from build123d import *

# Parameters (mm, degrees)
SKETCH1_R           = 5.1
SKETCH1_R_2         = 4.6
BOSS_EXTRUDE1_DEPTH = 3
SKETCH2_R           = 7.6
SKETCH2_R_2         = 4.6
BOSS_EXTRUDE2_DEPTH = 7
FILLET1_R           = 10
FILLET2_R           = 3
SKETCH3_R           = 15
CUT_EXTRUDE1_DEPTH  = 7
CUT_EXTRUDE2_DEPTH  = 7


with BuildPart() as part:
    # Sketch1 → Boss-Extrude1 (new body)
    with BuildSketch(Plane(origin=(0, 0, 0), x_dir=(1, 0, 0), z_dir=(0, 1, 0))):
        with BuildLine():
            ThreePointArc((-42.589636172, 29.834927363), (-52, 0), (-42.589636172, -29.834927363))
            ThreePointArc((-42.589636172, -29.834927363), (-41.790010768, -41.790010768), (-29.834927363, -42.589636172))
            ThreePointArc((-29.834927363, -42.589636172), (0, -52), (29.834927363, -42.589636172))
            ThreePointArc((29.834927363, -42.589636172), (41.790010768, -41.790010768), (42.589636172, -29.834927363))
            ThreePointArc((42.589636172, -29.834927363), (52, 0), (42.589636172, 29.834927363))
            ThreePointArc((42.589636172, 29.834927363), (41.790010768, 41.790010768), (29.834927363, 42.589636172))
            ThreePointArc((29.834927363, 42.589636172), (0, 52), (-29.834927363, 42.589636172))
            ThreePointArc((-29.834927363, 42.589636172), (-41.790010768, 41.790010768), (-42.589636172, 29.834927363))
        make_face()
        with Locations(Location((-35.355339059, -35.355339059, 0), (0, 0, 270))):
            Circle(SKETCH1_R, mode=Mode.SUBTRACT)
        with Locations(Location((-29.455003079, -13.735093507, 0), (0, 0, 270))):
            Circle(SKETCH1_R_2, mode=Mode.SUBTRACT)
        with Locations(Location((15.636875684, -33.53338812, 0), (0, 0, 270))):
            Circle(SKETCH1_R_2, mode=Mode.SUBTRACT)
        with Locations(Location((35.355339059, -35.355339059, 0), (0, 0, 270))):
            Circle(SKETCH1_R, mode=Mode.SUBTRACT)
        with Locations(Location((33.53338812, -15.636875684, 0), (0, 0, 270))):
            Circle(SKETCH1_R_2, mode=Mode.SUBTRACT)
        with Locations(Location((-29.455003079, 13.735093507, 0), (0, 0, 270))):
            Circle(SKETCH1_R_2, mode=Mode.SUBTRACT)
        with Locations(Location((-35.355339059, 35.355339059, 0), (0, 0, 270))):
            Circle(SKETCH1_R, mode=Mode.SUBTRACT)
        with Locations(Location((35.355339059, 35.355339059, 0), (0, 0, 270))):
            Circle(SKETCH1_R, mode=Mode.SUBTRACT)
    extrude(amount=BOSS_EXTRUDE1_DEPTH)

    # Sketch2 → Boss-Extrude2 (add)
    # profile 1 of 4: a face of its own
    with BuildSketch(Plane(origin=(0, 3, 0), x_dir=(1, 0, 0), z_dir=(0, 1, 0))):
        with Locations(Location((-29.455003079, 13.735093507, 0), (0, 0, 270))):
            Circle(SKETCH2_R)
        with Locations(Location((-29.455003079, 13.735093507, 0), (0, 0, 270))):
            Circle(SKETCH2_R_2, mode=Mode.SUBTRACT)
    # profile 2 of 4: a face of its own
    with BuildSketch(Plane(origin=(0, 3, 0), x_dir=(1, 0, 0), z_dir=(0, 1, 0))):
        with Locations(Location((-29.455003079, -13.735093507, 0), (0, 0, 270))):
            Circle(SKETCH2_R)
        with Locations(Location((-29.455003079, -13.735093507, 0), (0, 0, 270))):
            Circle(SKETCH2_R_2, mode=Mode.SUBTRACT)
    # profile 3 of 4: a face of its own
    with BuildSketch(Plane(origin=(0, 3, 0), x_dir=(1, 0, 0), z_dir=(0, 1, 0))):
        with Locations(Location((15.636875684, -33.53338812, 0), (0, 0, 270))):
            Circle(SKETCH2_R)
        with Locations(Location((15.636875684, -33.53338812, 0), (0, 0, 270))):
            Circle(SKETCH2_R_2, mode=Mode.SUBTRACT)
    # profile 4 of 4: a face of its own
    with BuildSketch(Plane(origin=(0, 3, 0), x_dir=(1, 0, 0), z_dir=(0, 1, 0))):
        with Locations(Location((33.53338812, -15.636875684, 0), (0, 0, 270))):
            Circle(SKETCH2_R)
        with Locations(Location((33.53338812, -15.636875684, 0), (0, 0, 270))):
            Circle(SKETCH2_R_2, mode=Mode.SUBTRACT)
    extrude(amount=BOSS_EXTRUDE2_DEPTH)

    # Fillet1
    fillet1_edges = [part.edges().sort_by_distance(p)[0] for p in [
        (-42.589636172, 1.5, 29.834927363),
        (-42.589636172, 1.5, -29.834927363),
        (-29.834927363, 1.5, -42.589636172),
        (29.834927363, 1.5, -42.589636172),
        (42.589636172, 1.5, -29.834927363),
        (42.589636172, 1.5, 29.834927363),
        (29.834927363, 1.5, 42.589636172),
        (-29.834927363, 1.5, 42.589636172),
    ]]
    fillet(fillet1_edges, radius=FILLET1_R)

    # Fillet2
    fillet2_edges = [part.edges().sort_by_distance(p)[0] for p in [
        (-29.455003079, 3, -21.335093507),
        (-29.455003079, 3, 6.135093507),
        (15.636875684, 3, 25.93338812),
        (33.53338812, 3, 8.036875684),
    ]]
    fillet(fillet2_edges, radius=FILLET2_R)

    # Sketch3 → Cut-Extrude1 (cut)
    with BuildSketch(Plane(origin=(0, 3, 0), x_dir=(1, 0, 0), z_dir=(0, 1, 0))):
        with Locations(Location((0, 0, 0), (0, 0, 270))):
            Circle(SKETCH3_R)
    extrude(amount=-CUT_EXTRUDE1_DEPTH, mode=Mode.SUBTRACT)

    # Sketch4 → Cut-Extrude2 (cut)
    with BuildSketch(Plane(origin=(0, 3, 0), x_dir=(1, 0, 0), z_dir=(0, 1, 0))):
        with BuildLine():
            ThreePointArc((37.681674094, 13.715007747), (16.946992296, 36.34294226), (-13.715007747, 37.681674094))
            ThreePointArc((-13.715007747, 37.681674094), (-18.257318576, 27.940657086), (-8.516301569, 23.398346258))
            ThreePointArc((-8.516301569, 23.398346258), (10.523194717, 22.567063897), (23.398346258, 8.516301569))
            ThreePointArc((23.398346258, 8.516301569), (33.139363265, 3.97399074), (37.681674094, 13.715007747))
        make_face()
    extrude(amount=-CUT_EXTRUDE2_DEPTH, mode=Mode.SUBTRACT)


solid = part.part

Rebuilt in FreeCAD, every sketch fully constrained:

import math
import FreeCAD as App
import Part
import Sketcher


def edges_at(feature, points):
    """Names of the edges that pass closest to the given points."""
    edges = feature.Shape.Edges
    near = lambda p: min(range(len(edges)), key=lambda i: edges[i].distToShape(Part.Vertex(*p))[0])
    return sorted({f"Edge{near(p) + 1}" for p in points})

doc = App.newDocument("Part")
body = doc.addObject("PartDesign::Body", "Body")

# Sketch on XZ plane
sketch1 = body.newObject("Sketcher::SketchObject", "Sketch")
sketch1.AttachmentSupport = (doc.getObject("XZ_Plane"), [""])
sketch1.MapMode = "FlatFace"
sketch1.addGeometry(Part.ArcOfCircle(Part.Circle(App.Vector(0, 0, 0), App.Vector(0, 0, 1), 52), math.radians(145), math.radians(215)), False)
sketch1.addGeometry(Part.ArcOfCircle(Part.Circle(App.Vector(-35.4, 35.4, 0), App.Vector(0, 0, 1), 9.1), math.radians(53), math.radians(217)), False)
sketch1.addGeometry(Part.ArcOfCircle(Part.Circle(App.Vector(0, 0, 0), App.Vector(0, 0, 1), 52), math.radians(55), math.radians(125)), False)
sketch1.addGeometry(Part.ArcOfCircle(Part.Circle(App.Vector(35.4, 35.4, 0), App.Vector(0, 0, 1), 9.1), math.radians(-37), math.radians(127)), False)
sketch1.addGeometry(Part.ArcOfCircle(Part.Circle(App.Vector(0, 0, 0), App.Vector(0, 0, 1), 52), math.radians(-35), math.radians(35)), False)
sketch1.addGeometry(Part.ArcOfCircle(Part.Circle(App.Vector(35.4, -35.4, 0), App.Vector(0, 0, 1), 9.1), math.radians(-127), math.radians(37)), False)
sketch1.addGeometry(Part.ArcOfCircle(Part.Circle(App.Vector(0, 0, 0), App.Vector(0, 0, 1), 52), math.radians(-125), math.radians(-55)), False)
sketch1.addGeometry(Part.ArcOfCircle(Part.Circle(App.Vector(-35.4, -35.4, 0), App.Vector(0, 0, 1), 9.1), math.radians(143), math.radians(307)), False)
sketch1.addGeometry(Part.Circle(App.Vector(-35.4, 35.4, 0), App.Vector(0, 0, 1), 5.1), False)
sketch1.addGeometry(Part.Circle(App.Vector(-29.5, 13.7, 0), App.Vector(0, 0, 1), 4.6), False)
sketch1.addGeometry(Part.Circle(App.Vector(15.6, 33.5, 0), App.Vector(0, 0, 1), 4.6), False)
sketch1.addGeometry(Part.Circle(App.Vector(35.4, 35.4, 0), App.Vector(0, 0, 1), 5.1), False)
sketch1.addGeometry(Part.Circle(App.Vector(33.5, 15.6, 0), App.Vector(0, 0, 1), 4.6), False)
sketch1.addGeometry(Part.Circle(App.Vector(-29.5, -13.7, 0), App.Vector(0, 0, 1), 4.6), False)
sketch1.addGeometry(Part.Circle(App.Vector(-35.4, -35.4, 0), App.Vector(0, 0, 1), 5.1), False)
sketch1.addGeometry(Part.Circle(App.Vector(35.4, -35.4, 0), App.Vector(0, 0, 1), 5.1), False)
sketch1.addConstraint(Sketcher.Constraint("Coincident", 0, 1, 1, 2))
sketch1.addConstraint(Sketcher.Constraint("Coincident", 1, 1, 2, 2))
sketch1.addConstraint(Sketcher.Constraint("Coincident", 2, 1, 3, 2))
sketch1.addConstraint(Sketcher.Constraint("Coincident", 3, 1, 4, 2))
sketch1.addConstraint(Sketcher.Constraint("Coincident", 4, 1, 5, 2))
sketch1.addConstraint(Sketcher.Constraint("Coincident", 5, 1, 6, 2))
sketch1.addConstraint(Sketcher.Constraint("Coincident", 6, 1, 7, 2))
sketch1.addConstraint(Sketcher.Constraint("Coincident", 7, 1, 0, 2))
sketch1.addConstraint(Sketcher.Constraint("Coincident", 0, 3, -1, 1))
sketch1.addConstraint(Sketcher.Constraint("Coincident", 2, 3, -1, 1))
sketch1.addConstraint(Sketcher.Constraint("Coincident", 4, 3, -1, 1))
sketch1.addConstraint(Sketcher.Constraint("Coincident", 6, 3, -1, 1))
sketch1.addConstraint(Sketcher.Constraint("Coincident", 8, 3, 1, 3))
sketch1.addConstraint(Sketcher.Constraint("Coincident", 11, 3, 3, 3))
sketch1.addConstraint(Sketcher.Constraint("Coincident", 14, 3, 7, 3))
sketch1.addConstraint(Sketcher.Constraint("Coincident", 15, 3, 5, 3))
sketch1.addConstraint(Sketcher.Constraint("Equal", 0, 2))
sketch1.addConstraint(Sketcher.Constraint("Equal", 1, 3))
sketch1.addConstraint(Sketcher.Constraint("Equal", 2, 4))
sketch1.addConstraint(Sketcher.Constraint("Equal", 3, 5))
sketch1.addConstraint(Sketcher.Constraint("Equal", 4, 6))
sketch1.addConstraint(Sketcher.Constraint("Equal", 5, 7))
sketch1.addConstraint(Sketcher.Constraint("Equal", 9, 10))
sketch1.addConstraint(Sketcher.Constraint("Equal", 8, 11))
sketch1.addConstraint(Sketcher.Constraint("Equal", 10, 12))
sketch1.addConstraint(Sketcher.Constraint("Equal", 12, 13))
sketch1.addConstraint(Sketcher.Constraint("Equal", 11, 14))
sketch1.addConstraint(Sketcher.Constraint("Equal", 14, 15))
sketch1.addConstraint(Sketcher.Constraint("Symmetric", 1, 3, 5, 3, -1, 1))
sketch1.addConstraint(Sketcher.Constraint("Symmetric", 3, 3, 7, 3, -1, 1))
sketch1.addConstraint(Sketcher.Constraint("Symmetric", 1, 3, 3, 3, -2))
sketch1.addConstraint(Sketcher.Constraint("Symmetric", 9, 3, 13, 3, -1))
sketch1.addConstraint(Sketcher.Constraint("Radius", 0, 52.0))
sketch1.addConstraint(Sketcher.Constraint("Diameter", 8, 10.2))
sketch1.addConstraint(Sketcher.Constraint("Diameter", 9, 9.2))
sketch1.addConstraint(Sketcher.Constraint("Radius", 1, 9.1))
sketch1.addConstraint(Sketcher.Constraint("DistanceX", 1, 3, -1, 1, 35.355339))
sketch1.addConstraint(Sketcher.Constraint("DistanceY", -1, 1, 1, 3, 35.355339))
sketch1.addConstraint(Sketcher.Constraint("DistanceY", -1, 1, 10, 3, 33.533388))
sketch1.addConstraint(Sketcher.Constraint("DistanceX", -1, 1, 12, 3, 33.533388))
sketch1.addConstraint(Sketcher.Constraint("DistanceY", 13, 3, 0, 1, 43.570021))
sketch1.addConstraint(Sketcher.Constraint("DistanceX", 10, 3, 2, 1, 14.198052))
sketch1.addConstraint(Sketcher.Constraint("DistanceY", 12, 3, 2, 1, 26.95276))
sketch1.addConstraint(Sketcher.Constraint("DistanceX", 9, 3, -1, 1, 29.455003))
pad1 = body.newObject("PartDesign::Pad", "Pad")
pad1.Profile = sketch1
pad1.Length = 3
pad1.Reversed = True

# Sketch on XZ plane
sketch2 = body.newObject("Sketcher::SketchObject", "Sketch001")
sketch2.AttachmentSupport = (doc.getObject("XZ_Plane"), [""])
sketch2.MapMode = "FlatFace"
sketch2.AttachmentOffset = App.Placement(App.Vector(0, 0, -3), App.Rotation())
sketch2.addGeometry(Part.Circle(App.Vector(-29.5, -13.7, 0), App.Vector(0, 0, 1), 7.6), False)
sketch2.addGeometry(Part.Circle(App.Vector(-29.5, -13.7, 0), App.Vector(0, 0, 1), 4.6), False)
sketch2.addGeometry(Part.Circle(App.Vector(-29.5, 13.7, 0), App.Vector(0, 0, 1), 7.6), False)
sketch2.addGeometry(Part.Circle(App.Vector(-29.5, 13.7, 0), App.Vector(0, 0, 1), 4.6), False)
sketch2.addGeometry(Part.Circle(App.Vector(15.6, 33.5, 0), App.Vector(0, 0, 1), 7.6), False)
sketch2.addGeometry(Part.Circle(App.Vector(15.6, 33.5, 0), App.Vector(0, 0, 1), 4.6), False)
sketch2.addGeometry(Part.Circle(App.Vector(33.5, 15.6, 0), App.Vector(0, 0, 1), 7.6), False)
sketch2.addGeometry(Part.Circle(App.Vector(33.5, 15.6, 0), App.Vector(0, 0, 1), 4.6), False)
sketch2.addConstraint(Sketcher.Constraint("Coincident", 1, 3, 0, 3))
sketch2.addConstraint(Sketcher.Constraint("Coincident", 3, 3, 2, 3))
sketch2.addConstraint(Sketcher.Constraint("Coincident", 5, 3, 4, 3))
sketch2.addConstraint(Sketcher.Constraint("Coincident", 7, 3, 6, 3))
sketch2.addConstraint(Sketcher.Constraint("Equal", 0, 2))
sketch2.addConstraint(Sketcher.Constraint("Equal", 1, 3))
sketch2.addConstraint(Sketcher.Constraint("Equal", 2, 4))
sketch2.addConstraint(Sketcher.Constraint("Equal", 3, 5))
sketch2.addConstraint(Sketcher.Constraint("Equal", 4, 6))
sketch2.addConstraint(Sketcher.Constraint("Equal", 5, 7))
sketch2.addConstraint(Sketcher.Constraint("Symmetric", 0, 3, 2, 3, -1))
sketch2.addConstraint(Sketcher.Constraint("Diameter", 0, 15.2))
sketch2.addConstraint(Sketcher.Constraint("Diameter", 1, 9.2))
sketch2.addConstraint(Sketcher.Constraint("DistanceY", -1, 1, 4, 3, 33.533388))
sketch2.addConstraint(Sketcher.Constraint("DistanceX", -1, 1, 6, 3, 33.533388))
sketch2.addConstraint(Sketcher.Constraint("DistanceX", 2, 3, 4, 3, 45.091879))
sketch2.addConstraint(Sketcher.Constraint("DistanceY", 0, 3, 4, 3, 47.268482))
sketch2.addConstraint(Sketcher.Constraint("DistanceX", 2, 3, 6, 3, 62.988391))
sketch2.addConstraint(Sketcher.Constraint("DistanceY", 0, 3, 6, 3, 29.371969))
pad2 = body.newObject("PartDesign::Pad", "Pad001")
pad2.Profile = sketch2
pad2.Length = 7
pad2.Reversed = True
doc.recompute()

fillet = body.newObject("PartDesign::Fillet", "Fillet")
fillet.Base = (pad2, edges_at(pad2, [
    (-42.59, 1.5, 29.835),
    (-42.59, 1.5, -29.835),
    (-29.835, 1.5, -42.59),
    (29.835, 1.5, -42.59),
    (42.59, 1.5, -29.835),
    (42.59, 1.5, 29.835),
    (29.835, 1.5, 42.59),
    (-29.835, 1.5, 42.59),
]))
fillet.Radius = 10
doc.recompute()

fillet2 = body.newObject("PartDesign::Fillet", "Fillet001")
fillet2.Base = (fillet, edges_at(fillet, [
    (-29.455, 3, -21.335),
    (-29.455, 3, 6.135),
    (15.637, 3, 25.933),
    (33.533, 3, 8.037),
]))
fillet2.Radius = 3

# Sketch on XZ plane
sketch3 = body.newObject("Sketcher::SketchObject", "Sketch002")
sketch3.AttachmentSupport = (doc.getObject("XZ_Plane"), [""])
sketch3.MapMode = "FlatFace"
sketch3.AttachmentOffset = App.Placement(App.Vector(0, 0, -3), App.Rotation())
sketch3.addGeometry(Part.Circle(App.Vector(0, 0, 0), App.Vector(0, 0, 1), 15), False)
sketch3.addConstraint(Sketcher.Constraint("Coincident", 0, 3, -1, 1))
sketch3.addConstraint(Sketcher.Constraint("Diameter", 0, 30.0))
pocket1 = body.newObject("PartDesign::Pocket", "Pocket")
pocket1.Profile = sketch3
pocket1.Length = 7
pocket1.Reversed = True

# Sketch on XZ plane
sketch4 = body.newObject("Sketcher::SketchObject", "Sketch003")
sketch4.AttachmentSupport = (doc.getObject("XZ_Plane"), [""])
sketch4.MapMode = "FlatFace"
sketch4.AttachmentOffset = App.Placement(App.Vector(0, 0, -3), App.Rotation())
sketch4.addGeometry(Part.ArcOfCircle(Part.Circle(App.Vector(0, 0, 0), App.Vector(0, 0, 1), 40), math.radians(-110), math.radians(-20)), False)
sketch4.addGeometry(Part.ArcOfCircle(Part.Circle(App.Vector(-11, -31, 0), App.Vector(0, 0, 1), 8), math.radians(70), math.radians(250)), False)
sketch4.addGeometry(Part.ArcOfCircle(Part.Circle(App.Vector(0, 0, 0), App.Vector(0, 0, 1), 25), math.radians(-110), math.radians(-20)), False)
sketch4.addGeometry(Part.ArcOfCircle(Part.Circle(App.Vector(31, -11, 0), App.Vector(0, 0, 1), 8), math.radians(-20), math.radians(160)), False)
sketch4.addConstraint(Sketcher.Constraint("Tangent", 0, 1, 1, 2))
sketch4.addConstraint(Sketcher.Constraint("Tangent", 1, 1, 2, 1))
sketch4.addConstraint(Sketcher.Constraint("Tangent", 2, 2, 3, 2))
sketch4.addConstraint(Sketcher.Constraint("Tangent", 3, 1, 0, 2))
sketch4.addConstraint(Sketcher.Constraint("Coincident", 0, 3, -1, 1))
sketch4.addConstraint(Sketcher.Constraint("Coincident", 2, 3, -1, 1))
sketch4.addConstraint(Sketcher.Constraint("Radius", 0, 40.1))
sketch4.addConstraint(Sketcher.Constraint("Radius", 1, 7.6))
sketch4.addConstraint(Sketcher.Constraint("DistanceX", 1, 3, 2, 2, 34.514001))
sketch4.addConstraint(Sketcher.Constraint("DistanceX", 1, 1, -1, 1, 8.516302))
pocket2 = body.newObject("PartDesign::Pocket", "Pocket001")
pocket2.Profile = sketch4
pocket2.Length = 7
pocket2.Reversed = True

doc.recompute()
